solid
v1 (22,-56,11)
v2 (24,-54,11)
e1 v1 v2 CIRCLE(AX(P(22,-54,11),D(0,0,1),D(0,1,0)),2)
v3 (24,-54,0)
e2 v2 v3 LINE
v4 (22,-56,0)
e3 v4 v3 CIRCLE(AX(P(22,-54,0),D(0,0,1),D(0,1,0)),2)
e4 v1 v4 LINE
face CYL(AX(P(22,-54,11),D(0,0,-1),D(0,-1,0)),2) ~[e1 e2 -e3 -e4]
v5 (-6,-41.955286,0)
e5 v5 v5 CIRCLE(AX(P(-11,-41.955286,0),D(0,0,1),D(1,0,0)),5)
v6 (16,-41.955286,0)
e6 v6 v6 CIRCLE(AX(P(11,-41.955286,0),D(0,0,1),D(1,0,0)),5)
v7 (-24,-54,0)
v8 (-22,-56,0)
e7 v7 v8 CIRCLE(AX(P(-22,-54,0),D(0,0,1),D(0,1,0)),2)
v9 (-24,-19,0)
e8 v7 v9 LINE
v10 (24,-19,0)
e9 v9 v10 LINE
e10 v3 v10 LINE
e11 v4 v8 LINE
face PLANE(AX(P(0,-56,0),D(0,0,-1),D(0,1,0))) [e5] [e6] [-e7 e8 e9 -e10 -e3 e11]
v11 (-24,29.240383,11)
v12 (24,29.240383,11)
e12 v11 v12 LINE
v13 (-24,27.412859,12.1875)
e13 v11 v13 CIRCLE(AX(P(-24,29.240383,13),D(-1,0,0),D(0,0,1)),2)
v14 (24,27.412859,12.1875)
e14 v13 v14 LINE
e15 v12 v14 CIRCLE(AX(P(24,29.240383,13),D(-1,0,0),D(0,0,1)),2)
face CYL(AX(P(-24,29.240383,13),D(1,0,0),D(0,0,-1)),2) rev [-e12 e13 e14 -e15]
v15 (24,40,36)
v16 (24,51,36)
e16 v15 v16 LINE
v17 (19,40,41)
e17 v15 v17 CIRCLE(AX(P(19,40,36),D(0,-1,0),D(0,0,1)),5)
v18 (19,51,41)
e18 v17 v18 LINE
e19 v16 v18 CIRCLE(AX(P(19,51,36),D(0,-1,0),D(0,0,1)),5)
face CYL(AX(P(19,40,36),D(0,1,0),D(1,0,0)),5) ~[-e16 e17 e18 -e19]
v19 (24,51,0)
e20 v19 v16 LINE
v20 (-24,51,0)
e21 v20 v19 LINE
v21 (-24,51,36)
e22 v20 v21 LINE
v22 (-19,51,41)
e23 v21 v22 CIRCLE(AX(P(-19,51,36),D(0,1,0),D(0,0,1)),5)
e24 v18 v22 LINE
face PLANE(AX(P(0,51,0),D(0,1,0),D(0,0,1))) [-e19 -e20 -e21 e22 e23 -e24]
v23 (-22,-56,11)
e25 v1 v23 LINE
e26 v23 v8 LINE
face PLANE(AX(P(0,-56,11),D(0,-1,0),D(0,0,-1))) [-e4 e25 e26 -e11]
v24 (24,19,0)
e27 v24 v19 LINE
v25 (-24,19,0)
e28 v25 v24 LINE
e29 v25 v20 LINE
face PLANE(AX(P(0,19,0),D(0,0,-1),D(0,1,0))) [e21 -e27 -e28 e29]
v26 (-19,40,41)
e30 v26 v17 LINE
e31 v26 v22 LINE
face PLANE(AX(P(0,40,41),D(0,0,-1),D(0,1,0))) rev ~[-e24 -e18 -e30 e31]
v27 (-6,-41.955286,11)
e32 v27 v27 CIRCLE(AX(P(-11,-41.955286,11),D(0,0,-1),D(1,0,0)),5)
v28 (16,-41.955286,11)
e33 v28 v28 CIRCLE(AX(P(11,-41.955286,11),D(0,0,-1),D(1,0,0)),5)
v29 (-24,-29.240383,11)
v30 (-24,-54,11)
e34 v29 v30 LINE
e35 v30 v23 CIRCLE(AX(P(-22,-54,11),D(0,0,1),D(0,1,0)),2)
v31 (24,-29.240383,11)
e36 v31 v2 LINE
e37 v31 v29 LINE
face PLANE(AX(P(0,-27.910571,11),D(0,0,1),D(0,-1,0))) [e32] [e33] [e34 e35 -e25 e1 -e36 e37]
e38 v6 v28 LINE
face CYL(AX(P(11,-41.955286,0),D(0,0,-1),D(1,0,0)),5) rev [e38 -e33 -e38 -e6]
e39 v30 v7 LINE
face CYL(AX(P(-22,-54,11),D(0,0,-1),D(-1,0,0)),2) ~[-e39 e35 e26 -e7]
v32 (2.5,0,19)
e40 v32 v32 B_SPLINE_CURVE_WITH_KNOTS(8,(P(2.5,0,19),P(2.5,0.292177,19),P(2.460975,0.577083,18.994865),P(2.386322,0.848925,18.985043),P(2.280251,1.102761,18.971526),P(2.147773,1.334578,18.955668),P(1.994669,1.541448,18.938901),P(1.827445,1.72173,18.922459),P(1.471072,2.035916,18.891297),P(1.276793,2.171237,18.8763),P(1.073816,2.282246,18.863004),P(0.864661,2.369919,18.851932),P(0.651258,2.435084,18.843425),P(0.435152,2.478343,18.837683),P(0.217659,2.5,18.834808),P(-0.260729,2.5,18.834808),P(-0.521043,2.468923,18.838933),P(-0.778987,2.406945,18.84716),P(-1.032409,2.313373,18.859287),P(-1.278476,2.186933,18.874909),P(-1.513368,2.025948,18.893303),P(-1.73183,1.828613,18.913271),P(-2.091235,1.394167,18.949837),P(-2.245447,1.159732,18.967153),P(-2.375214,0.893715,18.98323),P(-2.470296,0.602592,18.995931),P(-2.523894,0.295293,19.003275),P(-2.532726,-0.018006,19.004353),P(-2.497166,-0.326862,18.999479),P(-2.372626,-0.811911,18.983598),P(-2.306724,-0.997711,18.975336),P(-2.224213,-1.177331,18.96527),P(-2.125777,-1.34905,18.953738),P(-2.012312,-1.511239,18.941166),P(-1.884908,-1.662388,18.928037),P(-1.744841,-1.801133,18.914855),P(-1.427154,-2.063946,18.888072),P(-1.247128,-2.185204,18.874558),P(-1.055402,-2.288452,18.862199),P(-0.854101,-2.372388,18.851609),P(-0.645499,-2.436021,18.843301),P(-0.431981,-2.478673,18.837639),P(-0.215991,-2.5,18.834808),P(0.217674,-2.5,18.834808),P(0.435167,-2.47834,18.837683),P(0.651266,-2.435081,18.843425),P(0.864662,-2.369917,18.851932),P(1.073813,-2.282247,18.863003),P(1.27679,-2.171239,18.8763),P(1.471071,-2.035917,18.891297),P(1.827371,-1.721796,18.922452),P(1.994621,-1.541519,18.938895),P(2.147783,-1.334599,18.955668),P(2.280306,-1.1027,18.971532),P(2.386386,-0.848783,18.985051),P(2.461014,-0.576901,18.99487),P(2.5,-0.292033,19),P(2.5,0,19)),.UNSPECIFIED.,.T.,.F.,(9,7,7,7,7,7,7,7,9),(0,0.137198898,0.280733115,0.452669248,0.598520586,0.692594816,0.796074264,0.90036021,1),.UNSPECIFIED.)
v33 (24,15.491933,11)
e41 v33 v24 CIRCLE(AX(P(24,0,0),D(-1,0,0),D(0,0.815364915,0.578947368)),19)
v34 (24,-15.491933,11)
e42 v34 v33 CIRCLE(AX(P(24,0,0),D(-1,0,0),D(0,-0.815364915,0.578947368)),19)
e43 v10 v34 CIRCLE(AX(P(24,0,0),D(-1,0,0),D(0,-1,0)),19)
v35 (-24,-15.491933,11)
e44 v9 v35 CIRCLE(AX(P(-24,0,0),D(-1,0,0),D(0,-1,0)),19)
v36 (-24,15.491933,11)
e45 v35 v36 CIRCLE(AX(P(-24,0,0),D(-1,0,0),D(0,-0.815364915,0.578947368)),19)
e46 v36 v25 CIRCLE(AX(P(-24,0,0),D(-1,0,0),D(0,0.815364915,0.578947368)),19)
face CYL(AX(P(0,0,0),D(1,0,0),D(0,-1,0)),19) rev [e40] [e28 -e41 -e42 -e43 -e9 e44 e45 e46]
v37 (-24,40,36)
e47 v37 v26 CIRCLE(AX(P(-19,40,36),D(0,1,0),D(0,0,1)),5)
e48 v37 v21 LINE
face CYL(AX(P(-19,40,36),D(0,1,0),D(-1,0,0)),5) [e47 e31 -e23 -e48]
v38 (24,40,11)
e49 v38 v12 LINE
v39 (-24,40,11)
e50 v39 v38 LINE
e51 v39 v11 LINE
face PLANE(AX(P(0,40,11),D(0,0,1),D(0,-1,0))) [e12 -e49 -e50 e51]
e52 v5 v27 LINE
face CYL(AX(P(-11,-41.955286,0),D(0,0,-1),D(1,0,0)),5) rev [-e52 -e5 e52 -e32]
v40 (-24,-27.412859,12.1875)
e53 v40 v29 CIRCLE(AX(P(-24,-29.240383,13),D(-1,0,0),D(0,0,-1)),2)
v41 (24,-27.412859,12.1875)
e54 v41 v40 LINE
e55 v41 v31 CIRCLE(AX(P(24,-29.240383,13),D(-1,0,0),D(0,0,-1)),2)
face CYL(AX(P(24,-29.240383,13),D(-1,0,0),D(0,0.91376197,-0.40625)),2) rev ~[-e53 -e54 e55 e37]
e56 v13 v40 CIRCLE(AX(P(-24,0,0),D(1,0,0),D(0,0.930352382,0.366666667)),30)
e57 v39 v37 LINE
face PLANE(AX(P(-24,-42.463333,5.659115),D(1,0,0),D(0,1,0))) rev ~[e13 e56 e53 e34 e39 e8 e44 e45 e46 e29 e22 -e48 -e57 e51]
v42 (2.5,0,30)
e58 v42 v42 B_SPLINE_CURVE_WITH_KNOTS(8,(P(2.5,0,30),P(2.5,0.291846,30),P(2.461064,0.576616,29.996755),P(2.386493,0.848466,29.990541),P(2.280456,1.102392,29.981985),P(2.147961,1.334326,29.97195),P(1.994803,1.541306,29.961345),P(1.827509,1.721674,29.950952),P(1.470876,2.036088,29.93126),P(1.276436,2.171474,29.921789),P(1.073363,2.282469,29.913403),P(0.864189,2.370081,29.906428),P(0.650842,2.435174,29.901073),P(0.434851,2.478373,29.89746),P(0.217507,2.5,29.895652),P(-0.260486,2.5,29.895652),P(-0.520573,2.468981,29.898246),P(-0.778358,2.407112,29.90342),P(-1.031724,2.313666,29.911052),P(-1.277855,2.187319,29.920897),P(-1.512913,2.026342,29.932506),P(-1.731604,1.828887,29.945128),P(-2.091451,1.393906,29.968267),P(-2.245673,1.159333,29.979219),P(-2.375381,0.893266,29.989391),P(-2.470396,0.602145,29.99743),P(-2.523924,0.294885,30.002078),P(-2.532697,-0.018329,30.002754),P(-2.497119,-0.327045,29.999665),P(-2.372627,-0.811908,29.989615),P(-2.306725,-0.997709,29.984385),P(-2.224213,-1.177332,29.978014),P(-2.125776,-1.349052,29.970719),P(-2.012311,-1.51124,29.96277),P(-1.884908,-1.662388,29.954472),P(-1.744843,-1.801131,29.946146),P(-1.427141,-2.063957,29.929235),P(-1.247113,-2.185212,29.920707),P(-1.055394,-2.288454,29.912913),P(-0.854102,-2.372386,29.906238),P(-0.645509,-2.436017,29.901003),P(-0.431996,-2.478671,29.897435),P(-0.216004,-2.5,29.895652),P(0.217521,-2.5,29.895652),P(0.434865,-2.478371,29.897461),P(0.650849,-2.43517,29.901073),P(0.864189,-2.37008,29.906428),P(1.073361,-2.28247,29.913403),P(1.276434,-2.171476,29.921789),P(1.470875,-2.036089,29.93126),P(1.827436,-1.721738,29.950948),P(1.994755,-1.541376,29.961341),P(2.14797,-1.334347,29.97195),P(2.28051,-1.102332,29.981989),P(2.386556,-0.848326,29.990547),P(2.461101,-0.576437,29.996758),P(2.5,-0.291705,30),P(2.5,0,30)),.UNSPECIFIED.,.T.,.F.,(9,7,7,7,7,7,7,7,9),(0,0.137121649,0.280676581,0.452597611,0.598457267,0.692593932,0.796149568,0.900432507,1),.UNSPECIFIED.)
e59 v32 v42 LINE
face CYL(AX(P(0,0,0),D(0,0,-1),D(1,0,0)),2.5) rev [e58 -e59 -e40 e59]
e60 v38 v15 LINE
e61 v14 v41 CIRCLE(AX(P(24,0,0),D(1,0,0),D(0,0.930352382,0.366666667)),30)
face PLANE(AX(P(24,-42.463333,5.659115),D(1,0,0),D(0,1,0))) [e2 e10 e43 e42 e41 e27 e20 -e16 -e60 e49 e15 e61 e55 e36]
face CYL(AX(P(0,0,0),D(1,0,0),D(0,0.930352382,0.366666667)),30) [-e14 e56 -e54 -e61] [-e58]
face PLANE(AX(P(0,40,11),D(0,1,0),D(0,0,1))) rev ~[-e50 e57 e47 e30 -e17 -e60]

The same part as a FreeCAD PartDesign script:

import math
import FreeCAD as App
import Part
import Sketcher

V = App.Vector
Q = App.Units.Quantity


def edges_at(feature, points):
    """Names of the edges that pass closest to the given points."""
    edges = feature.Shape.Edges
    near = lambda p: min(range(len(edges)), key=lambda i: edges[i].distToShape(Part.Vertex(*p))[0])
    return sorted({f"Edge{near(p) + 1}" for p in points})

doc = App.newDocument("Part")
params = doc.addObject("Spreadsheet::Sheet", "Params")
for row, (alias, value) in enumerate([
    ("sketch1_radius", "19 mm"),
    ("sketch1_radius2", "30 mm"),
    ("sketch1_width", "37 mm"),
    ("sketch1_width2", "32 mm"),
    ("sketch1_width3", "11 mm"),
    ("pad1_length", "48 mm"),
    ("sketch2_radius", "6.5 mm"),
    ("sketch2_height", "16 mm"),
    ("pocket1_length", "25 mm"),
    ("sketch3_diameter", "5 mm"),
    ("sketch3_diameter2", "10 mm"),
    ("fillet_radius", "2 mm"),
    ("fillet2_radius", "5 mm"),
    ("fillet3_radius", "2 mm"),
], start=1):
    params.set(f"A{row}", alias)
    params.set(f"B{row}", "=" + value)
    params.setAlias(f"B{row}", alias)

body = doc.addObject("PartDesign::Body", "Body")

# Sketch on YZ plane
sketch1 = body.newObject("Sketcher::SketchObject", "Sketch")
sketch1.AttachmentSupport = (doc.getObject("YZ_Plane"), [""])
sketch1.MapMode = "FlatFace"
sketch1.addGeometry(Part.LineSegment(V(-56, 0, 0), V(-19, 0, 0)), False)
sketch1.addGeometry(Part.ArcOfCircle(Part.Circle(V(0, 0, 0), V(0, 0, 1), 19), math.radians(144.62346), math.radians(180)), False)
sketch1.addGeometry(Part.ArcOfCircle(Part.Circle(V(0, 0, 0), V(0, 0, 1), 19), math.radians(35.37654), math.radians(144.62346)), False)
sketch1.addGeometry(Part.ArcOfCircle(Part.Circle(V(0, 0, 0), V(0, 0, 1), 19), math.radians(0), math.radians(35.37654)), False)
sketch1.addGeometry(Part.LineSegment(V(19, 0, 0), V(51, 0, 0)), False)
sketch1.addGeometry(Part.LineSegment(V(51, 0, 0), V(51, 41, 0)), False)
sketch1.addGeometry(Part.LineSegment(V(51, 41, 0), V(40, 41, 0)), False)
sketch1.addGeometry(Part.LineSegment(V(40, 41, 0), V(40, 11, 0)), False)
sketch1.addGeometry(Part.LineSegment(V(40, 11, 0), V(27.910571, 11, 0)), False)
sketch1.addGeometry(Part.ArcOfCircle(Part.Circle(V(0, 0, 0), V(0, 0, 1), 30), math.radians(21.510188), math.radians(158.489812)), False)
sketch1.addGeometry(Part.LineSegment(V(-27.910571, 11, 0), V(-56, 11, 0)), False)
sketch1.addGeometry(Part.LineSegment(V(-56, 11, 0), V(-56, 0, 0)), False)
sketch1.addConstraint(Sketcher.Constraint("Coincident", 0, 2, 1, 2))
sketch1.addConstraint(Sketcher.Constraint("Tangent", 1, 1, 2, 2))
sketch1.addConstraint(Sketcher.Constraint("Tangent", 2, 1, 3, 2))
sketch1.addConstraint(Sketcher.Constraint("Coincident", 3, 1, 4, 1))
sketch1.addConstraint(Sketcher.Constraint("Coincident", 4, 2, 5, 1))
sketch1.addConstraint(Sketcher.Constraint("Coincident", 5, 2, 6, 1))
sketch1.addConstraint(Sketcher.Constraint("Coincident", 6, 2, 7, 1))
sketch1.addConstraint(Sketcher.Constraint("Coincident", 7, 2, 8, 1))
sketch1.addConstraint(Sketcher.Constraint("Coincident", 8, 2, 9, 1))
sketch1.addConstraint(Sketcher.Constraint("Coincident", 9, 2, 10, 1))
sketch1.addConstraint(Sketcher.Constraint("Coincident", 10, 2, 11, 1))
sketch1.addConstraint(Sketcher.Constraint("Coincident", 11, 2, 0, 1))
sketch1.addConstraint(Sketcher.Constraint("Horizontal", 0))
sketch1.addConstraint(Sketcher.Constraint("Horizontal", 4))
sketch1.addConstraint(Sketcher.Constraint("Vertical", 5))
sketch1.addConstraint(Sketcher.Constraint("Horizontal", 6))
sketch1.addConstraint(Sketcher.Constraint("Vertical", 7))
sketch1.addConstraint(Sketcher.Constraint("Horizontal", 8))
sketch1.addConstraint(Sketcher.Constraint("Horizontal", 10))
sketch1.addConstraint(Sketcher.Constraint("Vertical", 11))
sketch1.addConstraint(Sketcher.Constraint("Coincident", 1, 3, -1, 1))
sketch1.addConstraint(Sketcher.Constraint("Coincident", 3, 3, -1, 1))
sketch1.addConstraint(Sketcher.Constraint("Coincident", 9, 3, -1, 1))
sketch1.addConstraint(Sketcher.Constraint("PointOnObject", 0, 2, -1))
sketch1.addConstraint(Sketcher.Constraint("PointOnObject", 3, 1, -1))
sketch1.addConstraint(Sketcher.Constraint("Horizontal", 1, 1, 2, 1))
sketch1.addConstraint(Sketcher.Constraint("Horizontal", 2, 1, 7, 2))
sketch1.addConstraint(Sketcher.Constraint("Horizontal", 8, 2, 9, 2))
sketch1.addConstraint(Sketcher.Constraint("Equal", 6, 11))
sketch1.addConstraint(Sketcher.Constraint("Radius", 1, Q("19 mm")))
sketch1.addConstraint(Sketcher.Constraint("Radius", 9, Q("30 mm")))
sketch1.addConstraint(Sketcher.Constraint("DistanceX", 0, 1, 0, 2, Q("37 mm")))
sketch1.addConstraint(Sketcher.Constraint("DistanceX", 4, 1, 4, 2, Q("32 mm")))
sketch1.addConstraint(Sketcher.Constraint("DistanceX", 6, 2, 6, 1, Q("11 mm")))
sketch1.addConstraint(Sketcher.Constraint("DistanceY", 5, 1, 5, 2, Q("41 mm")))
sketch1.setExpression("Constraints[29]", "Params.sketch1_radius")
sketch1.setExpression("Constraints[30]", "Params.sketch1_radius2")
sketch1.setExpression("Constraints[31]", "Params.sketch1_width")
sketch1.setExpression("Constraints[32]", "Params.sketch1_width2")
sketch1.setExpression("Constraints[33]", "Params.sketch1_width3")
pad1 = body.newObject("PartDesign::Pad", "Pad")
pad1.Profile = sketch1
pad1.setExpression("Length", "Params.pad1_length")
pad1.Midplane = True

# Sketch on XZ plane
sketch2 = body.newObject("Sketcher::SketchObject", "Sketch001")
sketch2.AttachmentSupport = (doc.getObject("XZ_Plane"), [""])
sketch2.MapMode = "FlatFace"
sketch2.AttachmentOffset = App.Placement(V(0, 0, -51), App.Rotation())
sketch2.addGeometry(Part.ArcOfCircle(Part.Circle(V(0, 25, 0), V(0, 0, 1), 6.5), math.radians(180), math.radians(360)), False)
sketch2.addGeometry(Part.LineSegment(V(-6.5, 25, 0), V(-6.5, 41, 0)), False)
sketch2.addGeometry(Part.LineSegment(V(-6.5, 41, 0), V(6.5, 41, 0)), False)
sketch2.addGeometry(Part.LineSegment(V(6.5, 41, 0), V(6.5, 25, 0)), False)
sketch2.addConstraint(Sketcher.Constraint("Tangent", 0, 1, 1, 1))
sketch2.addConstraint(Sketcher.Constraint("Coincident", 1, 2, 2, 1))
sketch2.addConstraint(Sketcher.Constraint("Coincident", 2, 2, 3, 1))
sketch2.addConstraint(Sketcher.Constraint("Tangent", 3, 2, 0, 2))
sketch2.addConstraint(Sketcher.Constraint("Vertical", 1))
sketch2.addConstraint(Sketcher.Constraint("Horizontal", 2))
sketch2.addConstraint(Sketcher.Constraint("Vertical", 3))
sketch2.addConstraint(Sketcher.Constraint("PointOnObject", 0, 3, -2))
sketch2.addConstraint(Sketcher.Constraint("Radius", 0, Q("6.5 mm")))
sketch2.addConstraint(Sketcher.Constraint("DistanceY", 1, 1, 1, 2, Q("16 mm")))
sketch2.addConstraint(Sketcher.Constraint("DistanceY", -1, 1, 0, 3, Q("25 mm")))
sketch2.setExpression("Constraints[8]", "Params.sketch2_radius")
sketch2.setExpression("Constraints[9]", "Params.sketch2_height")
pocket1 = body.newObject("PartDesign::Pocket", "Pocket")
pocket1.Profile = sketch2
pocket1.setExpression("Length", "Params.pocket1_length")

# Sketch on XY plane
sketch3 = body.newObject("Sketcher::SketchObject", "Sketch002")
sketch3.AttachmentSupport = (doc.getObject("XY_Plane"), [""])
sketch3.MapMode = "FlatFace"
sketch3.addGeometry(Part.Circle(V(0, 0, 0), V(0, 0, 1), 2.5), False)
sketch3.addGeometry(Part.Circle(V(-11, -41.955286, 0), V(0, 0, 1), 5), False)
sketch3.addGeometry(Part.Circle(V(11, -41.955286, 0), V(0, 0, 1), 5), False)
sketch3.addConstraint(Sketcher.Constraint("Coincident", 0, 3, -1, 1))
sketch3.addConstraint(Sketcher.Constraint("Equal", 1, 2))
sketch3.addConstraint(Sketcher.Constraint("Symmetric", 1, 3, 2, 3, -2))
sketch3.addConstraint(Sketcher.Constraint("Diameter", 0, Q("5 mm")))
sketch3.addConstraint(Sketcher.Constraint("Diameter", 1, Q("10 mm")))
sketch3.addConstraint(Sketcher.Constraint("DistanceX", 1, 3, -1, 1, Q("11 mm")))
sketch3.addConstraint(Sketcher.Constraint("DistanceY", 1, 3, -1, 1, Q("41.955286 mm")))
sketch3.setExpression("Constraints[3]", "Params.sketch3_diameter")
sketch3.setExpression("Constraints[4]", "Params.sketch3_diameter2")
pocket2 = body.newObject("PartDesign::Pocket", "Pocket001")
pocket2.Profile = sketch3
pocket2.Type = "ThroughAll"
pocket2.Reversed = True
doc.recompute()

fillet = body.newObject("PartDesign::Fillet", "Fillet")
fillet.Base = (pocket2, edges_at(pocket2, [(24, -56, 5.5), (-24, -56, 5.5)]))
fillet.setExpression("Radius", "Params.fillet_radius")
doc.recompute()

fillet2 = body.newObject("PartDesign::Fillet", "Fillet001")
fillet2.Base = (fillet, edges_at(fillet, [(24, 45.5, 41), (-24, 45.5, 41)]))
fillet2.setExpression("Radius", "Params.fillet2_radius")
doc.recompute()

fillet3 = body.newObject("PartDesign::Fillet", "Fillet002")
fillet3.Base = (fillet2, edges_at(fillet2, [(0, -27.911, 11), (0, 27.911, 11)]))
fillet3.setExpression("Radius", "Params.fillet3_radius")

doc.recompute()
